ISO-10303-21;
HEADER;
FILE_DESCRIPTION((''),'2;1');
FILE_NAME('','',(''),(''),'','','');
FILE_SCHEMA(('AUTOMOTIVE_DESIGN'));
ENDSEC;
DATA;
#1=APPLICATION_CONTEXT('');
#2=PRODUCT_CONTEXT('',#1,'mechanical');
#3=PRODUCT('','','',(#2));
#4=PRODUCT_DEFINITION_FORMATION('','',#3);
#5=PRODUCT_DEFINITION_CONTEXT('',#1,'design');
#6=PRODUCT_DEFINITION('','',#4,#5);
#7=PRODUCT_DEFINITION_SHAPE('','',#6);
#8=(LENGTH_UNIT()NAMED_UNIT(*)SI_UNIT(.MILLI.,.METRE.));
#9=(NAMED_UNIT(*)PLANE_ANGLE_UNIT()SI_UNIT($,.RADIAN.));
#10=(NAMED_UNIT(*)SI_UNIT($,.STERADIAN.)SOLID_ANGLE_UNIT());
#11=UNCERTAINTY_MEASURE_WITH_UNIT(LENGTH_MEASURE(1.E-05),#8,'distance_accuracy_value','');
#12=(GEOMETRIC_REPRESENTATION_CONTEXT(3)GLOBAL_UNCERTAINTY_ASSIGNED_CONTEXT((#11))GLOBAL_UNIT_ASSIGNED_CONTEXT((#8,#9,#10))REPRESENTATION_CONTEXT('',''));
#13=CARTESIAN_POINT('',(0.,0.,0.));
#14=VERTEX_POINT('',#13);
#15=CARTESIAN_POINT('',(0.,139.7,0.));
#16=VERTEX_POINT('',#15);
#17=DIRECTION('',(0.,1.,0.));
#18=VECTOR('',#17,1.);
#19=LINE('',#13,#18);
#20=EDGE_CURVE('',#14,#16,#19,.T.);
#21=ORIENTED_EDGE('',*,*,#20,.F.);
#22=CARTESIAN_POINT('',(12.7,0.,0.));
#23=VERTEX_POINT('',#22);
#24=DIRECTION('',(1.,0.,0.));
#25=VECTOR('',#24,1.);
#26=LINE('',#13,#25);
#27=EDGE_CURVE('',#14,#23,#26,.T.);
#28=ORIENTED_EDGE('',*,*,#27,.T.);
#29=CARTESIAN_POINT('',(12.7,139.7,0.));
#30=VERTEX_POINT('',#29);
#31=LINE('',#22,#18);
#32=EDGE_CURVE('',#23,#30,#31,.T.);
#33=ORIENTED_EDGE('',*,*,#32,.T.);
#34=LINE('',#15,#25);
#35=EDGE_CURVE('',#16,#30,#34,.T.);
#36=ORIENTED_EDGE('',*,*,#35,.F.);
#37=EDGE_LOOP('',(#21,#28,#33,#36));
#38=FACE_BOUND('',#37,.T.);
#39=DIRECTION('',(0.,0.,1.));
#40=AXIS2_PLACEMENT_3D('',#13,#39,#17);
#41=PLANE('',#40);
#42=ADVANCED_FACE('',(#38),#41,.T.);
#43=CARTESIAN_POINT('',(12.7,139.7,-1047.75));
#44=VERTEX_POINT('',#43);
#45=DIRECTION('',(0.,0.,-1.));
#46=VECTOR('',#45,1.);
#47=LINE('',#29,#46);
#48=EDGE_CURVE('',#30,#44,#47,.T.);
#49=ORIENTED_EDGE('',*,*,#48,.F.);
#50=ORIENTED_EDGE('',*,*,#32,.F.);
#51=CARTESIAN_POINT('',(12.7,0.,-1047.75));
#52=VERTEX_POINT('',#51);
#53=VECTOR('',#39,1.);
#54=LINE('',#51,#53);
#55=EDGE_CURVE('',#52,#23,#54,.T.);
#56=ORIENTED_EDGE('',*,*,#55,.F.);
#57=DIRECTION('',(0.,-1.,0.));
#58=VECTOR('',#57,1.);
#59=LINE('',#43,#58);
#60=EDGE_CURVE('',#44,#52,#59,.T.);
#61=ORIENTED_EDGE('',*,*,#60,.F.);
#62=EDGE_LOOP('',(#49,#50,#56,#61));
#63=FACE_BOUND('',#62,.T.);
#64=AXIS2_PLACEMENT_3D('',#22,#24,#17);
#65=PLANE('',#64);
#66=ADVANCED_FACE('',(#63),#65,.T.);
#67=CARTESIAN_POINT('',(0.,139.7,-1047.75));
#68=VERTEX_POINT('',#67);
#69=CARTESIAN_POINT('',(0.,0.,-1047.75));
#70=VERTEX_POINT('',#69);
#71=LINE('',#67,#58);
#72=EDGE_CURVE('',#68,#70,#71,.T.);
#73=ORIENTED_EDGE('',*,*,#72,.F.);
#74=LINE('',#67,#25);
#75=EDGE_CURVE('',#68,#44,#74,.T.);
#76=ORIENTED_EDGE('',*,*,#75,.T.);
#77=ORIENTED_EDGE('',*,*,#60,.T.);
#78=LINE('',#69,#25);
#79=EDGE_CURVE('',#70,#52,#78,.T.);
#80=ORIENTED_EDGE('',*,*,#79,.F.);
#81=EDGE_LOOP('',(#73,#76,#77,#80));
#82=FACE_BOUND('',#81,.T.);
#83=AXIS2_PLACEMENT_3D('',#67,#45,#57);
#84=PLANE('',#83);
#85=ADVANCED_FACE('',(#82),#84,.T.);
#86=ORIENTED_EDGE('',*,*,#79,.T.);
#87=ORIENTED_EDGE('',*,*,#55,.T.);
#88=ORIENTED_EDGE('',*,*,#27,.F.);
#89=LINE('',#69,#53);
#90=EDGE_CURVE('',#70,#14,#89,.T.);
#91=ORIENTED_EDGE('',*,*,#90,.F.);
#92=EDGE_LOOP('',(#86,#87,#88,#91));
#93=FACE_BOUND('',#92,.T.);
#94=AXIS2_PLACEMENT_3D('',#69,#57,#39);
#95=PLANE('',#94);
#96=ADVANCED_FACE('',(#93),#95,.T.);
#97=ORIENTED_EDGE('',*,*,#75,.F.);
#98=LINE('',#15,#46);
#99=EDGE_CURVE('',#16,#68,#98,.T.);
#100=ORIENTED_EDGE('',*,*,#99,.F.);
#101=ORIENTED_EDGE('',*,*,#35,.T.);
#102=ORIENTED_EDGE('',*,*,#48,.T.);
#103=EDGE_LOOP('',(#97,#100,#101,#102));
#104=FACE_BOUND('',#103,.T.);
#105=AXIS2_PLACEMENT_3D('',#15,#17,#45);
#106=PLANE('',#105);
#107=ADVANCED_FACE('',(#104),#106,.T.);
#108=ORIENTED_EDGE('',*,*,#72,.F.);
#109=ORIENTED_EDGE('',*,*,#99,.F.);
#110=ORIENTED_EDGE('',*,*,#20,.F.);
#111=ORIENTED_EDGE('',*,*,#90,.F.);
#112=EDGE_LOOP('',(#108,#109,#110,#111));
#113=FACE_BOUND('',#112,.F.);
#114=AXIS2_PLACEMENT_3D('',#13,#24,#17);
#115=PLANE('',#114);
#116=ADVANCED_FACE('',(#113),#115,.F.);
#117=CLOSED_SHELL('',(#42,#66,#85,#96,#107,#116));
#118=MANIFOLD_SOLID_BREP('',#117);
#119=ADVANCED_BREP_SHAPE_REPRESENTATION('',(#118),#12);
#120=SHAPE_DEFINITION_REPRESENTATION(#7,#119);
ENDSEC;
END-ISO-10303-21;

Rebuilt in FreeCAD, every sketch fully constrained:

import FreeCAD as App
import Part
import Sketcher
from FreeCAD import Vector
Q = App.Units.Quantity

doc = App.newDocument("Part")
body = doc.addObject("PartDesign::Body", "Body")

# Sketch on YZ plane
sketch1 = body.newObject("Sketcher::SketchObject", "Sketch")
sketch1.AttachmentSupport = (doc.getObject("YZ_Plane"), [""])
sketch1.MapMode = "FlatFace"
sketch1.addGeometry([
    Part.LineSegment(Vector(140, 0, 0), Vector(0, 0, 0)),
    Part.LineSegment(Vector(0, 0, 0), Vector(0, -1048, 0)),
    Part.LineSegment(Vector(0, -1048, 0), Vector(140, -1048, 0)),
    Part.LineSegment(Vector(140, -1048, 0), Vector(140, 0, 0)),
], False)
sketch1.addConstraint([
    Sketcher.Constraint("Coincident", 0, 2, 1, 1),
    Sketcher.Constraint("Coincident", 1, 2, 2, 1),
    Sketcher.Constraint("Coincident", 2, 2, 3, 1),
    Sketcher.Constraint("Coincident", 3, 2, 0, 1),
    Sketcher.Constraint("Horizontal", 0),
    Sketcher.Constraint("Vertical", 1),
    Sketcher.Constraint("Horizontal", 2),
    Sketcher.Constraint("Vertical", 3),
    Sketcher.Constraint("Coincident", 0, 2, -1, 1),
    Sketcher.Constraint("DistanceX", 0, 2, 0, 1, Q("5.5 in")),
    Sketcher.Constraint("DistanceY", 1, 2, 1, 1, Q("41.25 in")),
])
pad1 = body.newObject("PartDesign::Pad", "Pad")
pad1.Profile = sketch1
pad1.Length = Q("0.5 in")

doc.recompute()
